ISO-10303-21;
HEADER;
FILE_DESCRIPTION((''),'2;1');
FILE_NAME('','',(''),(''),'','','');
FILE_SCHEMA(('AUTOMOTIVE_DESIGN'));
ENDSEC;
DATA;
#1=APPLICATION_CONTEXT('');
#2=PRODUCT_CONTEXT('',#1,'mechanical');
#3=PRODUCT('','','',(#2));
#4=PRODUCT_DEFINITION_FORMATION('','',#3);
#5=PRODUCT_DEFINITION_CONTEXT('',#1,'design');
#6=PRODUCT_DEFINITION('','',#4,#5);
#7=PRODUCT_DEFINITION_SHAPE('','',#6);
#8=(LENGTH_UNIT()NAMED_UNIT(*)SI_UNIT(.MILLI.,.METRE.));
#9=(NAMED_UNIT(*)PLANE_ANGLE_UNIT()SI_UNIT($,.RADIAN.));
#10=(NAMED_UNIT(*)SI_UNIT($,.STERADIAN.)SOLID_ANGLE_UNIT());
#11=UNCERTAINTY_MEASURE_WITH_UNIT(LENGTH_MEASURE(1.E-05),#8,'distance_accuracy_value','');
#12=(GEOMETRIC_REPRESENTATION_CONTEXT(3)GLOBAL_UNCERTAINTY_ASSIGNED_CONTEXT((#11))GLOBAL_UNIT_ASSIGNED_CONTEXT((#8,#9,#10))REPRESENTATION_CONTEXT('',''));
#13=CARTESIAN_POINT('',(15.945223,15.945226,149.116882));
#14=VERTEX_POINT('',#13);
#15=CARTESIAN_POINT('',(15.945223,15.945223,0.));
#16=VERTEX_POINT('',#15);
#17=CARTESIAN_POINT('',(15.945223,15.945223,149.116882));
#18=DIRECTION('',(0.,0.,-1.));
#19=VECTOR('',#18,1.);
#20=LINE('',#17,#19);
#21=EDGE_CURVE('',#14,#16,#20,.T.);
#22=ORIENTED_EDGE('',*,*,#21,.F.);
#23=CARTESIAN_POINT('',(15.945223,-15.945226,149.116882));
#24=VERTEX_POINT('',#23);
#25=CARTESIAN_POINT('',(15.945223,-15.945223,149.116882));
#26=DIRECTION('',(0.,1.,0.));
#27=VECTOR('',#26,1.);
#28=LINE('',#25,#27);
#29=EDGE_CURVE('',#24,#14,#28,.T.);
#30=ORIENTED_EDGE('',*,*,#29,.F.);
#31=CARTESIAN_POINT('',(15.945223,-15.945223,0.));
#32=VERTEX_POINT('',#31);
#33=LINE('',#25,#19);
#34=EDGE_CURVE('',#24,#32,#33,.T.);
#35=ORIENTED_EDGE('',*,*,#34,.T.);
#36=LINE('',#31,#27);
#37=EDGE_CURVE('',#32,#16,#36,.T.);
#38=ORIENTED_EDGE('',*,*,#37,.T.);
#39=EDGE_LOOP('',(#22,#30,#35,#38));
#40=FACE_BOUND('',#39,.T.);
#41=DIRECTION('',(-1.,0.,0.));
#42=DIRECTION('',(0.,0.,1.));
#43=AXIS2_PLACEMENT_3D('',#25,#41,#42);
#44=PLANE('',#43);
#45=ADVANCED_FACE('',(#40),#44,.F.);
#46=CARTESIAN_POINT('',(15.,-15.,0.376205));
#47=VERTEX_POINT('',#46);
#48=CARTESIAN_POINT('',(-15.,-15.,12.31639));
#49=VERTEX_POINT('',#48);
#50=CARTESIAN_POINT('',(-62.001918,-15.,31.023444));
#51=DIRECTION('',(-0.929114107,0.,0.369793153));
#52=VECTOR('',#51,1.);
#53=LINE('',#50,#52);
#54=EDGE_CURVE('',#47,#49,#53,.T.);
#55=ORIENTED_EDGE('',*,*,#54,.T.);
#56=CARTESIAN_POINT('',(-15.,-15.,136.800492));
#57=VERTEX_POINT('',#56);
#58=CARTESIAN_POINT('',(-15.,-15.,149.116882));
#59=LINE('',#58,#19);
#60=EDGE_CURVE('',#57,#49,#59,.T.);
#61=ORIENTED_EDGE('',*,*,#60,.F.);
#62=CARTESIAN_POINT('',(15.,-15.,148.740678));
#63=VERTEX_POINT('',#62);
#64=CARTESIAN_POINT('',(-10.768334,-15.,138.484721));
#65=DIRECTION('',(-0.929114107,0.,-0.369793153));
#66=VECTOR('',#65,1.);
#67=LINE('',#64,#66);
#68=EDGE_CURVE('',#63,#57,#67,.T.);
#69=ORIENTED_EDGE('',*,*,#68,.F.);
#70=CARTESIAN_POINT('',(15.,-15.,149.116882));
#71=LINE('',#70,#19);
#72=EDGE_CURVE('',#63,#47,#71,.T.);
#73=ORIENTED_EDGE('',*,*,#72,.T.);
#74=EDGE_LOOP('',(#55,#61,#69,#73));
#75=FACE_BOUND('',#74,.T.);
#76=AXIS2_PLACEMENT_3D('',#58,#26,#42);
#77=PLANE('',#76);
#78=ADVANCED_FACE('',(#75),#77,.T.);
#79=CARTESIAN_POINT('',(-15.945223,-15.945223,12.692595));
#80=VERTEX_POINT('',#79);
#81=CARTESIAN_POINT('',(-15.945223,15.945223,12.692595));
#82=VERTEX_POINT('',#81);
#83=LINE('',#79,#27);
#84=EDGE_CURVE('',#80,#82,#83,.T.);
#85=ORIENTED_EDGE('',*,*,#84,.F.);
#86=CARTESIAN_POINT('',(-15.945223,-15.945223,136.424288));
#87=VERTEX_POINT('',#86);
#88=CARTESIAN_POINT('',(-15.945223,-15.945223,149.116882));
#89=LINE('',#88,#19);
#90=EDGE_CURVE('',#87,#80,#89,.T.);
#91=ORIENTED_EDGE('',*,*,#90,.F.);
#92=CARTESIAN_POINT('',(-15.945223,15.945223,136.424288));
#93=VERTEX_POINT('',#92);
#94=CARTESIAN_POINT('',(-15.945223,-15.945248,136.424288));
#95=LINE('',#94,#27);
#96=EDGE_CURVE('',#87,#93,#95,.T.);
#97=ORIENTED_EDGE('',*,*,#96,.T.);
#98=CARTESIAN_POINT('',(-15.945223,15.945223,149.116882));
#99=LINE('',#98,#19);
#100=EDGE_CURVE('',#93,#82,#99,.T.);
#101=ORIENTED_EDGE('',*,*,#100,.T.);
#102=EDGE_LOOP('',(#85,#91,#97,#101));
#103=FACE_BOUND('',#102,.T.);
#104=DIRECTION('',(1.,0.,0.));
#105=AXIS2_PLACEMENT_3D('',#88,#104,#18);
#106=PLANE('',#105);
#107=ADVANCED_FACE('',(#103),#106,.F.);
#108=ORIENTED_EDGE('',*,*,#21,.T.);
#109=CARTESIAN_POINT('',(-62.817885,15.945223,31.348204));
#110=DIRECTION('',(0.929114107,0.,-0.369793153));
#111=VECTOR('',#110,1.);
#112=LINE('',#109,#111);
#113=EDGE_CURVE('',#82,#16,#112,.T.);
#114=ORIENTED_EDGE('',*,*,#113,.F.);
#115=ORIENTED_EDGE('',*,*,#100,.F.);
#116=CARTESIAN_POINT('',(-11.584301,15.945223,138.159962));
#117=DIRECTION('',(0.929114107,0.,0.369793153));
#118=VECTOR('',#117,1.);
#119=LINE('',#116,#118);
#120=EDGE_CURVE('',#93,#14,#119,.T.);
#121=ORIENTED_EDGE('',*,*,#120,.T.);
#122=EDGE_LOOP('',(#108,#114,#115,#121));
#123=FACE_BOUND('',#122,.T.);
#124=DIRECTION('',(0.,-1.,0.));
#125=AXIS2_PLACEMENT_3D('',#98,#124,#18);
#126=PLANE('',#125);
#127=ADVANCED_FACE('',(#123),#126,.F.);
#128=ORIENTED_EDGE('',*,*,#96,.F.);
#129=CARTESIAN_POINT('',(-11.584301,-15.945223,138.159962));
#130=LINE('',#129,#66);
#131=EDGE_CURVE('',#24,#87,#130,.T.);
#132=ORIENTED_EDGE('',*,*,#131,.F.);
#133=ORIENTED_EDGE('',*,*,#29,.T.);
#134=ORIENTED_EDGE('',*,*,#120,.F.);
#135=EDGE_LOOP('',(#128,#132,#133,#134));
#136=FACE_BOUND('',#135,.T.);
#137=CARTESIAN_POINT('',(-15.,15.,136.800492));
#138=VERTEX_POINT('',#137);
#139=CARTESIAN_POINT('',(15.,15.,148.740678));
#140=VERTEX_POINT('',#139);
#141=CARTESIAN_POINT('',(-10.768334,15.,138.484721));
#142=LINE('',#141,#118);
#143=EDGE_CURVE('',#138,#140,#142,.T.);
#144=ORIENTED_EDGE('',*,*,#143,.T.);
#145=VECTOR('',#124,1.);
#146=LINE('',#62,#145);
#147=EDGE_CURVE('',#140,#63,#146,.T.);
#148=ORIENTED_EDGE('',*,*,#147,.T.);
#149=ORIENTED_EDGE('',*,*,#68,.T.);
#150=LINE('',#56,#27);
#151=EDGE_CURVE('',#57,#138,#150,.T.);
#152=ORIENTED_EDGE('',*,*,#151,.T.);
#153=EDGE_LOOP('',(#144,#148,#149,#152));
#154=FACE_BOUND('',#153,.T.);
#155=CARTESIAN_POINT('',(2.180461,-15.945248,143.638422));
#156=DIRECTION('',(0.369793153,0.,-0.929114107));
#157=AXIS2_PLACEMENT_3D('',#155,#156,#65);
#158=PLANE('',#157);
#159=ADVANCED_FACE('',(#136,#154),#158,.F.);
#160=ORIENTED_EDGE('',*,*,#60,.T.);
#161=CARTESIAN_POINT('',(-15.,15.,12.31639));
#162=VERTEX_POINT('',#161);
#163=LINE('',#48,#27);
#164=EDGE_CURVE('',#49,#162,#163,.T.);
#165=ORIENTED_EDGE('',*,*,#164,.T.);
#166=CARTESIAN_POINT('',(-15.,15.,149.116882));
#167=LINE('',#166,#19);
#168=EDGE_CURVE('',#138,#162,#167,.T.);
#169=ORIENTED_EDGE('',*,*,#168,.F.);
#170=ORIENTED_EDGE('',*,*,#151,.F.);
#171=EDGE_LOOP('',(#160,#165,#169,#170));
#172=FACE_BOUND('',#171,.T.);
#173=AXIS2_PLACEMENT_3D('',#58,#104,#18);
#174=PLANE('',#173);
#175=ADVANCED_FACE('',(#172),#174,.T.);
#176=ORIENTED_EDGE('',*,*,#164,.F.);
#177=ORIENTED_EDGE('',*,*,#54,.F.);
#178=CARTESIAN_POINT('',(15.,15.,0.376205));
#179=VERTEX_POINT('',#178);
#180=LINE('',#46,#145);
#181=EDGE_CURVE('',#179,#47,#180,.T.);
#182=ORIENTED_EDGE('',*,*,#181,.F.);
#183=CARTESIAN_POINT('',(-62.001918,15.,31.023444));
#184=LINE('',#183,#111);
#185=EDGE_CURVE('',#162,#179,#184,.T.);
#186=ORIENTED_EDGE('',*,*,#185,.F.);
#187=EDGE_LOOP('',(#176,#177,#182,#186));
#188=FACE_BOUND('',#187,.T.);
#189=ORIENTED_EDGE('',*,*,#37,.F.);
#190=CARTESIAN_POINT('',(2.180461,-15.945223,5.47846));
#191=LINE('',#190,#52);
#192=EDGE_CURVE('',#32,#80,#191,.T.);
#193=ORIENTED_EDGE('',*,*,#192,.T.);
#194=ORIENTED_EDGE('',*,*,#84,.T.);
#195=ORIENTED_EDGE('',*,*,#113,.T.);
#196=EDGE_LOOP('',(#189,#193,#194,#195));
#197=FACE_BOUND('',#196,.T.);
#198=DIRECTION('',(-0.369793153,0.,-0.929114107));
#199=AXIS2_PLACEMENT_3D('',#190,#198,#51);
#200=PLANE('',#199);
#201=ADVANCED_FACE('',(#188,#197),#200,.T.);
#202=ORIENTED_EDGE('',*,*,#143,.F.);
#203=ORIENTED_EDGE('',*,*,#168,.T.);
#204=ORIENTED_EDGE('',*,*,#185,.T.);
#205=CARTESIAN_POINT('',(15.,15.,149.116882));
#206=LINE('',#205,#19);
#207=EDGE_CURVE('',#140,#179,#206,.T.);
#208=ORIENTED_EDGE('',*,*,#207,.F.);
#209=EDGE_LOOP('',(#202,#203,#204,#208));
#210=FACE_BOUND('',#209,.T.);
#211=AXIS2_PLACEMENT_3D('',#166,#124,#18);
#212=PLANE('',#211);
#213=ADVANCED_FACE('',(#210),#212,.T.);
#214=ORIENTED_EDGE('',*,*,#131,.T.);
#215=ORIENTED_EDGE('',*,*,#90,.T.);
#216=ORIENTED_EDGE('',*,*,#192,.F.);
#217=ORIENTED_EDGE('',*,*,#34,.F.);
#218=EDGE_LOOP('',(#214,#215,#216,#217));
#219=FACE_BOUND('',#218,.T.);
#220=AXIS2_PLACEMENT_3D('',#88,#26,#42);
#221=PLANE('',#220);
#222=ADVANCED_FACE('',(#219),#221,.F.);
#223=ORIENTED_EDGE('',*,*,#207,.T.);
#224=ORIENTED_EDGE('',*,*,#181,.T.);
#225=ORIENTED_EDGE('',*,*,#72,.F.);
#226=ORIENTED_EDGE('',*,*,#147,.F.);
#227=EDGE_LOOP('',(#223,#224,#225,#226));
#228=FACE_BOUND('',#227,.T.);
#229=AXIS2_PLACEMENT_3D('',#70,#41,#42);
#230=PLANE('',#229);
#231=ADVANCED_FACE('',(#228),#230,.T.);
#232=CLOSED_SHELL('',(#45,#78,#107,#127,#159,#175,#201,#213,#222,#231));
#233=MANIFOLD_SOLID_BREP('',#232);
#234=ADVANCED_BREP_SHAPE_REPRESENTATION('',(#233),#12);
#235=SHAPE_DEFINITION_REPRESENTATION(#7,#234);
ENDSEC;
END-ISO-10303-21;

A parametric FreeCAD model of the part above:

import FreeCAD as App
import Part
import Sketcher


def add_polygon(sketch, points):
    """Adds a closed chain of lines whose ends are joined by coincident constraints."""
    first, n = sketch.GeometryCount, len(points)
    for a, b in zip(points, points[1:] + points[:1]):
        sketch.addGeometry(Part.LineSegment(App.Vector(*a, 0), App.Vector(*b, 0)), False)
    for i in range(n):
        sketch.addConstraint(Sketcher.Constraint("Coincident", first + i, 2, first + (i + 1) % n, 1))

doc = App.newDocument("Part")
body = doc.addObject("PartDesign::Body", "Body")

# Sketch on XY plane
sketch1 = doc.addObject("Sketcher::SketchObject", "Sketch")
body.addObject(sketch1)
sketch1.AttachmentSupport = (doc.XY_Plane, [""])
sketch1.MapMode = "FlatFace"
add_polygon(sketch1, [(-16, 16), (-16, -16), (16, -16), (16, 16)])  # lines 0-3
add_polygon(sketch1, [(15, -15), (-15, -15), (-15, 15), (15, 15)])  # lines 4-7
sketch1.addConstraint([
    Sketcher.Constraint("Vertical", 0),
    Sketcher.Constraint("Horizontal", 1),
    Sketcher.Constraint("Vertical", 2),
    Sketcher.Constraint("Horizontal", 3),
    Sketcher.Constraint("Horizontal", 4),
    Sketcher.Constraint("Vertical", 5),
    Sketcher.Constraint("Horizontal", 6),
    Sketcher.Constraint("Vertical", 7),
    Sketcher.Constraint("Symmetric", 0, 2, 2, 2, -1, 1),
    Sketcher.Constraint("Symmetric", 4, 2, 6, 2, -1, 1),
    Sketcher.Constraint("Equal", 3, 0),
    Sketcher.Constraint("Equal", 6, 5),
    Sketcher.Constraint("DistanceX", 4, 2, 4, 1, 30.0),
    Sketcher.Constraint("DistanceX", 1, 1, 1, 2, 31.890447),
])
pad1 = doc.addObject("PartDesign::Pad", "Pad")
body.addObject(pad1)
pad1.Profile = sketch1
pad1.Length = 149.116882

# Sketch on XZ plane
sketch2 = doc.addObject("Sketcher::SketchObject", "Sketch001")
body.addObject(sketch2)
sketch2.AttachmentSupport = (doc.XZ_Plane, [""])
sketch2.MapMode = "FlatFace"
sketch2.AttachmentOffset = App.Placement(App.Vector(0, 0, -15.945223), App.Rotation())
add_polygon(sketch2, [(-16, 13), (16, 0), (-16, 0)])  # lines 0-2
sketch2.addConstraint([
    Sketcher.Constraint("Horizontal", 1),
    Sketcher.Constraint("Vertical", 2),
    Sketcher.Constraint("Symmetric", 0, 2, 1, 2, -1, 1),
    Sketcher.Constraint("Distance", 0, 34.323499),
    Sketcher.Constraint("DistanceX", 1, 2, 1, 1, 31.890447),
])
pocket1 = doc.addObject("PartDesign::Pocket", "Pocket")
body.addObject(pocket1)
pocket1.Profile = sketch2
pocket1.Length = 308.640476
pocket1.Midplane = True
doc.recompute()

datumplane = doc.addObject("PartDesign::Plane", "DatumPlane")
body.addObject(datumplane)
datumplane.AttachmentSupport = (doc.XY_Plane, [""])
datumplane.MapMode = "FlatFace"
datumplane.AttachmentOffset = App.Placement(App.Vector(0, 0, 74.558441), App.Rotation())
mirrored = doc.addObject("PartDesign::Mirrored", "Mirrored")
body.addObject(mirrored)
mirrored.Originals = [pocket1]
mirrored.MirrorPlane = (datumplane, [""])
body.Tip = mirrored

doc.recompute()
